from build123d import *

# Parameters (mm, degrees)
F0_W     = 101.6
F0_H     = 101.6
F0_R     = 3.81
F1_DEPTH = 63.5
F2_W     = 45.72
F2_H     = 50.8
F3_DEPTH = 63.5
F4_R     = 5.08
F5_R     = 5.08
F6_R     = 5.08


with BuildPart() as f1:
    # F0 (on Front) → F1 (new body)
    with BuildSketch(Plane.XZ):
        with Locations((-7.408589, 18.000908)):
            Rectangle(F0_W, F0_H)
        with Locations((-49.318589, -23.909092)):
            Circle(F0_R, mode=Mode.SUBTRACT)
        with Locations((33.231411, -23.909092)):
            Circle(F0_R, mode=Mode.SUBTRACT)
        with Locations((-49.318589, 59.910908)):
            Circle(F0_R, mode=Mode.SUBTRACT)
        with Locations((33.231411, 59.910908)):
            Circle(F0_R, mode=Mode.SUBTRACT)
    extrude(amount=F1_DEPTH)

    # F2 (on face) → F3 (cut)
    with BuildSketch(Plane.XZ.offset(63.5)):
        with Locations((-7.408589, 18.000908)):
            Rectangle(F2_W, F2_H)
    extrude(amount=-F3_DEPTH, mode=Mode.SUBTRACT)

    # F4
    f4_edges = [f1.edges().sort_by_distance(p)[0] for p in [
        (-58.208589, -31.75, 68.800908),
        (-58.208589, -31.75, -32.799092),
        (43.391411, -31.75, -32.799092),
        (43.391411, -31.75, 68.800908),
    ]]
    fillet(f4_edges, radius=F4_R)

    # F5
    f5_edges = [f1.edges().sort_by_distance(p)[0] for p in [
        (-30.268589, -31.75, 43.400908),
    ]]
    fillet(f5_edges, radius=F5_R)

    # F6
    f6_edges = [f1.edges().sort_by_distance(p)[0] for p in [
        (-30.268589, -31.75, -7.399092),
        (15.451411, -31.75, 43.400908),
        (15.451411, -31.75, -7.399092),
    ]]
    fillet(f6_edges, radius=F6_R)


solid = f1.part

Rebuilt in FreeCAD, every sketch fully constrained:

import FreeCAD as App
import Part
import Sketcher
Q = App.Units.Quantity


def edges_at(feature, points):
    """Names of the edges that pass closest to the given points."""
    edges = feature.Shape.Edges
    near = lambda p: min(range(len(edges)), key=lambda i: edges[i].distToShape(Part.Vertex(*p))[0])
    return sorted({f"Edge{near(p) + 1}" for p in points})

doc = App.newDocument("Part")
params = doc.addObject("Spreadsheet::Sheet", "Params")
for row, (alias, value) in enumerate([
    ("sketch1_diameter", "0.3 in"),
    ("sketch1_width", "4 in"),
    ("pad1_length", "2.5 in"),
    ("sketch2_height", "2 in"),
    ("sketch2_width", "1.8 in"),
    ("pocket1_length", "2.5 in"),
    ("fillet_radius", "0.2 in"),
    ("fillet2_radius", "0.2 in"),
    ("fillet3_radius", "0.2 in"),
], start=1):
    params.set(f"A{row}", alias)
    params.set(f"B{row}", "=" + value)
    params.setAlias(f"B{row}", alias)

body = doc.addObject("PartDesign::Body", "Body")

# Sketch on XZ plane
sketch1 = body.newObject("Sketcher::SketchObject", "Sketch")
sketch1.AttachmentSupport = (doc.getObject("XZ_Plane"), [""])
sketch1.MapMode = "FlatFace"
sketch1.addGeometry([
    Part.LineSegment(App.Vector(-58.2, 68.8, 0), App.Vector(-58.2, -32.8, 0)),  # 0
    Part.LineSegment(App.Vector(-58.2, -32.8, 0), App.Vector(43.4, -32.8, 0)),  # 1
    Part.LineSegment(App.Vector(43.4, -32.8, 0), App.Vector(43.4, 68.8, 0)),  # 2
    Part.LineSegment(App.Vector(43.4, 68.8, 0), App.Vector(-58.2, 68.8, 0)),  # 3
    Part.Circle(App.Vector(-49.3, -23.9, 0), App.Vector(0, 0, 1), 3.8),  # 4
    Part.Circle(App.Vector(33.2, -23.9, 0), App.Vector(0, 0, 1), 3.8),  # 5
    Part.Circle(App.Vector(-49.3, 59.9, 0), App.Vector(0, 0, 1), 3.8),  # 6
    Part.Circle(App.Vector(33.2, 59.9, 0), App.Vector(0, 0, 1), 3.8),  # 7
], False)
sketch1.addConstraint([
    Sketcher.Constraint("Coincident", 0, 2, 1, 1),
    Sketcher.Constraint("Coincident", 1, 2, 2, 1),
    Sketcher.Constraint("Coincident", 2, 2, 3, 1),
    Sketcher.Constraint("Coincident", 3, 2, 0, 1),
    Sketcher.Constraint("Vertical", 0),
    Sketcher.Constraint("Horizontal", 1),
    Sketcher.Constraint("Vertical", 2),
    Sketcher.Constraint("Horizontal", 3),
    Sketcher.Constraint("Equal", 4, 5),
    Sketcher.Constraint("Equal", 5, 6),
    Sketcher.Constraint("Equal", 6, 7),
    Sketcher.Constraint("Horizontal", 4, 3, 5, 3),
    Sketcher.Constraint("Horizontal", 6, 3, 7, 3),
    Sketcher.Constraint("Vertical", 4, 3, 6, 3),
    Sketcher.Constraint("Vertical", 5, 3, 7, 3),
    Sketcher.Constraint("Equal", 3, 0),
    Sketcher.Constraint("Diameter", 4, Q("0.3 in")),
    Sketcher.Constraint("DistanceX", 1, 1, 1, 2, Q("4 in")),
    Sketcher.Constraint("DistanceY", 4, 3, 6, 3, Q("3.3 in")),
    Sketcher.Constraint("DistanceX", 0, 2, 5, 3, Q("3.6 in")),
    Sketcher.Constraint("DistanceX", 4, 3, 5, 3, Q("3.25 in")),
    Sketcher.Constraint("DistanceY", 0, 2, 4, 3, Q("0.35 in")),
    Sketcher.Constraint("DistanceX", 4, 3, -1, 1, Q("49.318589 mm")),
    Sketcher.Constraint("DistanceY", -1, 1, 2, 2, Q("68.800908 mm")),
])
sketch1.setExpression("Constraints[16]", "Params.sketch1_diameter")
sketch1.setExpression("Constraints[17]", "Params.sketch1_width")
pad1 = body.newObject("PartDesign::Pad", "Pad")
pad1.Profile = sketch1
pad1.setExpression("Length", "Params.pad1_length")

# Sketch on XZ plane
sketch2 = body.newObject("Sketcher::SketchObject", "Sketch001")
sketch2.AttachmentSupport = (doc.getObject("XZ_Plane"), [""])
sketch2.MapMode = "FlatFace"
sketch2.AttachmentOffset = App.Placement(App.Vector(0, 0, 2.5 * 25.4), App.Rotation())
sketch2.addGeometry([
    Part.LineSegment(App.Vector(-30, 43, 0), App.Vector(-30, -7, 0)),
    Part.LineSegment(App.Vector(-30, -7, 0), App.Vector(15, -7, 0)),
    Part.LineSegment(App.Vector(15, -7, 0), App.Vector(15, 43, 0)),
    Part.LineSegment(App.Vector(15, 43, 0), App.Vector(-30, 43, 0)),
], False)
sketch2.addConstraint([
    Sketcher.Constraint("Coincident", 0, 2, 1, 1),
    Sketcher.Constraint("Coincident", 1, 2, 2, 1),
    Sketcher.Constraint("Coincident", 2, 2, 3, 1),
    Sketcher.Constraint("Coincident", 3, 2, 0, 1),
    Sketcher.Constraint("Vertical", 0),
    Sketcher.Constraint("Horizontal", 1),
    Sketcher.Constraint("Vertical", 2),
    Sketcher.Constraint("Horizontal", 3),
    Sketcher.Constraint("DistanceY", 0, 2, 0, 1, Q("2 in")),
    Sketcher.Constraint("DistanceX", 1, 1, 1, 2, Q("1.8 in")),
    Sketcher.Constraint("DistanceX", 0, 2, -1, 1, Q("30.268589 mm")),
    Sketcher.Constraint("DistanceY", 0, 2, -1, 1, Q("7.399092 mm")),
])
sketch2.setExpression("Constraints[8]", "Params.sketch2_height")
sketch2.setExpression("Constraints[9]", "Params.sketch2_width")
pocket1 = body.newObject("PartDesign::Pocket", "Pocket")
pocket1.Profile = sketch2
pocket1.setExpression("Length", "Params.pocket1_length")
doc.recompute()

fillet = body.newObject("PartDesign::Fillet", "Fillet")
fillet.Base = (pocket1, edges_at(pocket1, [
    (-58.209, -31.75, 68.801),
    (-58.209, -31.75, -32.799),
    (43.391, -31.75, -32.799),
    (43.391, -31.75, 68.801),
]))
fillet.setExpression("Radius", "Params.fillet_radius")
doc.recompute()

fillet2 = body.newObject("PartDesign::Fillet", "Fillet001")
fillet2.Base = (fillet, edges_at(fillet, [(-30.269, -31.75, 43.401)]))
fillet2.setExpression("Radius", "Params.fillet2_radius")
doc.recompute()

fillet3 = body.newObject("PartDesign::Fillet", "Fillet002")
fillet3.Base = (fillet2, edges_at(fillet2, [(-30.269, -31.75, -7.399), (15.451, -31.75, 43.401), (15.451, -31.75, -7.399)]))
fillet3.setExpression("Radius", "Params.fillet3_radius")

doc.recompute()
